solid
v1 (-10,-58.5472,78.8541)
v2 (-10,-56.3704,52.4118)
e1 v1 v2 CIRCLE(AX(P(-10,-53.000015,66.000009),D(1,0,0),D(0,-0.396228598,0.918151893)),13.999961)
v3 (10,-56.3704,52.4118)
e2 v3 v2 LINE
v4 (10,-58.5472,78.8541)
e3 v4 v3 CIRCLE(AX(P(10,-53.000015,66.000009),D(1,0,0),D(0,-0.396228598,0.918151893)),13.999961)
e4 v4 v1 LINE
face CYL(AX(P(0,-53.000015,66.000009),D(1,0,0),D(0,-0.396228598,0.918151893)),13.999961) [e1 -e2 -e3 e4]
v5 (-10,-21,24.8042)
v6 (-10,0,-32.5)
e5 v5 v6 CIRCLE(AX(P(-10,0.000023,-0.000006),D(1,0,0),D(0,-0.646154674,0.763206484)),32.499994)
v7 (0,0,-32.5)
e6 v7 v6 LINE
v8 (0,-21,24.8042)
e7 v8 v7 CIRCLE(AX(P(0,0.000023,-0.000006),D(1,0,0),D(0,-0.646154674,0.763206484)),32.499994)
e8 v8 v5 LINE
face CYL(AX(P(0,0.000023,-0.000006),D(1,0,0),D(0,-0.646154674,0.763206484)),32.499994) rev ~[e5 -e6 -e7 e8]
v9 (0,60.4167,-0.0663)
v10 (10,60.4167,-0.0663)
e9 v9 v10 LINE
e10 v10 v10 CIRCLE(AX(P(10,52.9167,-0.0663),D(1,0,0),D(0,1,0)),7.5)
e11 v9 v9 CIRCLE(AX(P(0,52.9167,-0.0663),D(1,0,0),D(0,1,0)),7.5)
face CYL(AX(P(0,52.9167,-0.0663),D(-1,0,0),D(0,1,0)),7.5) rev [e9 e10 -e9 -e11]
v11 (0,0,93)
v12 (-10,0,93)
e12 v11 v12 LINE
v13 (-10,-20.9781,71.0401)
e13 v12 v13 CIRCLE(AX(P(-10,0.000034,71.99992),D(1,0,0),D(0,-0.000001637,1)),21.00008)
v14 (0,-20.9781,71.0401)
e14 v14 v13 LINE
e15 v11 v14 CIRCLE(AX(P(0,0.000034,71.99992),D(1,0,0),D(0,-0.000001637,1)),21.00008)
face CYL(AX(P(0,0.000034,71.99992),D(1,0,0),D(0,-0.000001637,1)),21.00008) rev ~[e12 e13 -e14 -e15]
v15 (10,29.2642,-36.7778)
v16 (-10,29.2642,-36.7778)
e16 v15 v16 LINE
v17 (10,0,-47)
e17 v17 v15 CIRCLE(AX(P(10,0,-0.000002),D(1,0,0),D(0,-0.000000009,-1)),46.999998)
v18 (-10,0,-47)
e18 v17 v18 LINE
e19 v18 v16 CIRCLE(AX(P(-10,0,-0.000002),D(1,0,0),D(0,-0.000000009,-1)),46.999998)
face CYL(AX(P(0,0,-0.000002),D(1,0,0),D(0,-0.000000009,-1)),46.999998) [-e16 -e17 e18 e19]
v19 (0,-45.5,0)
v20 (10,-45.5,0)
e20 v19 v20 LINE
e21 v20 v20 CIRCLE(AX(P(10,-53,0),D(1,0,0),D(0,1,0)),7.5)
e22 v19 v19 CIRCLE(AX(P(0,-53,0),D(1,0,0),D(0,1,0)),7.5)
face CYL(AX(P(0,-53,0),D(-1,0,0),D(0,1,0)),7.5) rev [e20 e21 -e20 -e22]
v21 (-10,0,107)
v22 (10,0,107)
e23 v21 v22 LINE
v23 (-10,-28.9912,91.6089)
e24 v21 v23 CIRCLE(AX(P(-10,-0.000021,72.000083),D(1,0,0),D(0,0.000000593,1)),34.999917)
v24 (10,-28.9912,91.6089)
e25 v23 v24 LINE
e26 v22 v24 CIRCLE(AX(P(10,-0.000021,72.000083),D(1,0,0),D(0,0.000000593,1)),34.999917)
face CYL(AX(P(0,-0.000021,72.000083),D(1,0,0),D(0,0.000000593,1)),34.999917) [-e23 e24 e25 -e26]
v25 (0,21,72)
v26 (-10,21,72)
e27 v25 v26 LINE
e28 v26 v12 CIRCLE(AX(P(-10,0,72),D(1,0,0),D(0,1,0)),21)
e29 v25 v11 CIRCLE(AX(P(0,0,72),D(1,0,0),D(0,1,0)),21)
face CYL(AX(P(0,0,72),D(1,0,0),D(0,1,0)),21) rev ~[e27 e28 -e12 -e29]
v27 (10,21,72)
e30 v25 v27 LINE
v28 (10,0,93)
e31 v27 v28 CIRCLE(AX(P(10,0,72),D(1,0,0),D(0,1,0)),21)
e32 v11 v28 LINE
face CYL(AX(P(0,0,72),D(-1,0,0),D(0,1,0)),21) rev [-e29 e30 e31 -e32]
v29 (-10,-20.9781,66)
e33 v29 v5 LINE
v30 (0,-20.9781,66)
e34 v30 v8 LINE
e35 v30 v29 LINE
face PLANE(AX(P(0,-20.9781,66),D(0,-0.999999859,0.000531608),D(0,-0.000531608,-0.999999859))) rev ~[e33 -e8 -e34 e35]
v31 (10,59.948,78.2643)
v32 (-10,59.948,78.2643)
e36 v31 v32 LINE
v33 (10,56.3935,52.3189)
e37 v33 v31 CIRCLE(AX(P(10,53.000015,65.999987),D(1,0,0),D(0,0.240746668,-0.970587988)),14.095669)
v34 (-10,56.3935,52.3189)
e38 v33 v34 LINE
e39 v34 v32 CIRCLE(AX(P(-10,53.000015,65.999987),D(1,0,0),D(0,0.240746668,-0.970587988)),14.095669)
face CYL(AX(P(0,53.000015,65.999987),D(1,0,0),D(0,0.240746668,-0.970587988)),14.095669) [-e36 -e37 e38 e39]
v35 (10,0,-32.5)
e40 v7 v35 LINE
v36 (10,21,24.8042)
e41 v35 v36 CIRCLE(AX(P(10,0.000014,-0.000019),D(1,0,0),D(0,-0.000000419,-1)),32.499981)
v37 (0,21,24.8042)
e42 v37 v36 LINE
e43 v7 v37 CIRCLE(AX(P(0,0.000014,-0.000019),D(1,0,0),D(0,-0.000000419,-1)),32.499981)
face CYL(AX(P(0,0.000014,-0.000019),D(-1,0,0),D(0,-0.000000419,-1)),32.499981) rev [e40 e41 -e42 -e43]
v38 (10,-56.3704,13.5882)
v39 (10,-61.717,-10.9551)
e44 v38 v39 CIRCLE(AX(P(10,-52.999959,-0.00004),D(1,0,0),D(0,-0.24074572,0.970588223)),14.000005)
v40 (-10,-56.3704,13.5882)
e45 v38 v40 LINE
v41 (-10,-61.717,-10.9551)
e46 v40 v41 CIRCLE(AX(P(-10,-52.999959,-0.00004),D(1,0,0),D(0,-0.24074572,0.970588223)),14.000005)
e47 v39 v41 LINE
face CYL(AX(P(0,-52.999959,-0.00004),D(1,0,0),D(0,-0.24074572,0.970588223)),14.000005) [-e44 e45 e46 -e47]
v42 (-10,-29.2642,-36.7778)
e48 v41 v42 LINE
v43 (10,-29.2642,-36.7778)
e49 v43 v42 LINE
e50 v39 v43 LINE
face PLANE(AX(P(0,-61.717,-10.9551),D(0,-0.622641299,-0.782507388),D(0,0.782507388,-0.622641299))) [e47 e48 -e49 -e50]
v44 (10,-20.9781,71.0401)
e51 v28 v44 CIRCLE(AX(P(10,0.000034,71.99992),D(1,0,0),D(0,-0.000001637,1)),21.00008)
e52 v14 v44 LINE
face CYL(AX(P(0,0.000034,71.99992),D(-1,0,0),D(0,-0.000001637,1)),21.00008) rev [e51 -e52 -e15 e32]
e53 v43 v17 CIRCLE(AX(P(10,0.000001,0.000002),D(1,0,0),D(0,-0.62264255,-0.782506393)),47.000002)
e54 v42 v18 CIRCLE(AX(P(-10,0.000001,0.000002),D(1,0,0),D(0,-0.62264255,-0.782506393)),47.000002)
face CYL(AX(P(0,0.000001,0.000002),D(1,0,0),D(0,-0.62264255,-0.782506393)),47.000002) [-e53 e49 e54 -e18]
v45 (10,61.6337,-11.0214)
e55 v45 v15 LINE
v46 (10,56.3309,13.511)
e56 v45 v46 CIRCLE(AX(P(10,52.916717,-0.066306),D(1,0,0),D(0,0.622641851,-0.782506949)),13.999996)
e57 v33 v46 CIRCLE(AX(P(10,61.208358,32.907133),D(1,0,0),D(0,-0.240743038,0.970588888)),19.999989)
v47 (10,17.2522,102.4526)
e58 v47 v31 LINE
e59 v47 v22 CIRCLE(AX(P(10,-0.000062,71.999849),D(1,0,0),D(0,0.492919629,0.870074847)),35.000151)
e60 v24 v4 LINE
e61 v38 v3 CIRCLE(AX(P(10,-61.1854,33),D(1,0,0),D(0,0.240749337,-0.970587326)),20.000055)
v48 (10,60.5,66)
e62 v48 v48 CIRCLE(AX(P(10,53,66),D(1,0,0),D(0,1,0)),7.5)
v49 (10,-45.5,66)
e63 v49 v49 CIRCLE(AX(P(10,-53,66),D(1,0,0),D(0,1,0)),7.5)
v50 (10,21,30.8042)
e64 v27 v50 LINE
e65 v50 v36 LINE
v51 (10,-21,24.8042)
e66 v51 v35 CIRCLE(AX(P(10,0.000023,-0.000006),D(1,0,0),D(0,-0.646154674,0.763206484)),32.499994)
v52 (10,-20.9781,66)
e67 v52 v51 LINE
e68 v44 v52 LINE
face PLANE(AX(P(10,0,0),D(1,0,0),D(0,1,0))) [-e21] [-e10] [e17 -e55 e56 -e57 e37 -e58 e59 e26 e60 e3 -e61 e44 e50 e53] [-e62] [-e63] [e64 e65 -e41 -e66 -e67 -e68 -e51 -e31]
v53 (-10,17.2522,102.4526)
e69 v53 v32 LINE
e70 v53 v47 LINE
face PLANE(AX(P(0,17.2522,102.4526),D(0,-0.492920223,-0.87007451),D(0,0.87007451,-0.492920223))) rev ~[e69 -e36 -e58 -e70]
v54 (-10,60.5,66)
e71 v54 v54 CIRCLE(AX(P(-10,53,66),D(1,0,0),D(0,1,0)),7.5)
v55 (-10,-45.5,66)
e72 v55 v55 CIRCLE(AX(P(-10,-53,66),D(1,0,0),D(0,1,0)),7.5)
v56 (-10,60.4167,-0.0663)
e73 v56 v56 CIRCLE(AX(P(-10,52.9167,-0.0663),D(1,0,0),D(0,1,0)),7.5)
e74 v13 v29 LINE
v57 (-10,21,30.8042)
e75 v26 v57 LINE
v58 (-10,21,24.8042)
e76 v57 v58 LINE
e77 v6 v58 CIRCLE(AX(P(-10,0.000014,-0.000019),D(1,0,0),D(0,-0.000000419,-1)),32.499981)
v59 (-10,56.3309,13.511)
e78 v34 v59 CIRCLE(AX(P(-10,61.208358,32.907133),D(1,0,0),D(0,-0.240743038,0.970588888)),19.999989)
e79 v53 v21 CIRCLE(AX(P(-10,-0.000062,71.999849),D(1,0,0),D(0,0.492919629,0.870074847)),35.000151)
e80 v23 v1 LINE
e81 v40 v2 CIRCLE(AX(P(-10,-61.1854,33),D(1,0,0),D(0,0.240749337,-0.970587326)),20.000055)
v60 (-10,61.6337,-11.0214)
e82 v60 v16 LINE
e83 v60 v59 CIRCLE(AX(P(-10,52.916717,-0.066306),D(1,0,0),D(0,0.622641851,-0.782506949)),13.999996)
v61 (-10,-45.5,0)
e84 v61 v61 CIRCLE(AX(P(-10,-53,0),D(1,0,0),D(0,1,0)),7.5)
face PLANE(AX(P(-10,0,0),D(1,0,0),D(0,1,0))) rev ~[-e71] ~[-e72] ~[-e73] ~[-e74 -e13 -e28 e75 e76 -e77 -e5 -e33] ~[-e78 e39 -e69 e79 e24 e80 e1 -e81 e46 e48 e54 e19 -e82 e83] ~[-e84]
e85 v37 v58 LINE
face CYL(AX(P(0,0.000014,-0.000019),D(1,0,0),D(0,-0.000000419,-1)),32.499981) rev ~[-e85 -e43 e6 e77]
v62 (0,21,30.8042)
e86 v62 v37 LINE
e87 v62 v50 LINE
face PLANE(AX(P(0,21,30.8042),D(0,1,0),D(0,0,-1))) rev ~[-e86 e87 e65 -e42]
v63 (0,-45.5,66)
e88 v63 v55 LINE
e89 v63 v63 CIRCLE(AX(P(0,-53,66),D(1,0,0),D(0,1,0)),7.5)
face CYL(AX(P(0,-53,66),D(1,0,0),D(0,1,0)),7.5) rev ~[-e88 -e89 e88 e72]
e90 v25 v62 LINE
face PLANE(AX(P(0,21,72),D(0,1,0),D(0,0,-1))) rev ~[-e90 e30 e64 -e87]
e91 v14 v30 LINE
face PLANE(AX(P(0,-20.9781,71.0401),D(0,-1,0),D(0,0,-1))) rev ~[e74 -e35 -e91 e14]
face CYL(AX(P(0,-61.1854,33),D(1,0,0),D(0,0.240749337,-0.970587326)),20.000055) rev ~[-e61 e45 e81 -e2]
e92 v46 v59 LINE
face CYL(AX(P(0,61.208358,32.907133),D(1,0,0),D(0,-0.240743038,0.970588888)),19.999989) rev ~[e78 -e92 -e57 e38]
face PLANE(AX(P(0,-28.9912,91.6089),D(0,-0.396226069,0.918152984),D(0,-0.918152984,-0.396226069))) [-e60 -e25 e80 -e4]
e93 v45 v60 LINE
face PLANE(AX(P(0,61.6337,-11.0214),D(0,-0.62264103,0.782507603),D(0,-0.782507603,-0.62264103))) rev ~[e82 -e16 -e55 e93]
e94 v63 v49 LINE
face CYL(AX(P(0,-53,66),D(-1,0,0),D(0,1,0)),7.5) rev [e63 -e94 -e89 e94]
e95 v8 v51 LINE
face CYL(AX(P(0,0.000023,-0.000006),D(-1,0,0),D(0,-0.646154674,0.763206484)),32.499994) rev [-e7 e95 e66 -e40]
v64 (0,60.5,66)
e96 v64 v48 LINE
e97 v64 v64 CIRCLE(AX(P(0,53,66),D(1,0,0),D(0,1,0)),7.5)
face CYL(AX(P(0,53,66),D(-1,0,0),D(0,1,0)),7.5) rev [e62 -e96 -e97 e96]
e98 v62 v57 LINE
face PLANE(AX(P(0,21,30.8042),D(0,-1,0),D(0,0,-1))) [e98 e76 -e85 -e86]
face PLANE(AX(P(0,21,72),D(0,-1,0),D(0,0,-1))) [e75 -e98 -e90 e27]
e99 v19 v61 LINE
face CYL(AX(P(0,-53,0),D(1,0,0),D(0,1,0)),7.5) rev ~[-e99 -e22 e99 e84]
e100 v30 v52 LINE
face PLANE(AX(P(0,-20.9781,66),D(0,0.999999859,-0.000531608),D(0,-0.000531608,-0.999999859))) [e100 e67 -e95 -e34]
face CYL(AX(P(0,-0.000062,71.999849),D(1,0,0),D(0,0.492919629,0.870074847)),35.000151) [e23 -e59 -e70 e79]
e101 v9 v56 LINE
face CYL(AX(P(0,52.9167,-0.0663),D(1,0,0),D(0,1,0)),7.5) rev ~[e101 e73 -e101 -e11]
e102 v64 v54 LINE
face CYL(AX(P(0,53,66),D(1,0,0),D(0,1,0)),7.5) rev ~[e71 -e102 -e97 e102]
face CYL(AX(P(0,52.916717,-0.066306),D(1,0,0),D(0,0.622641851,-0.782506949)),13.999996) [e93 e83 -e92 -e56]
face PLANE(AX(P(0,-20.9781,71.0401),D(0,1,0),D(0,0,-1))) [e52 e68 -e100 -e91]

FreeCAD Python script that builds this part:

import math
import FreeCAD as App
import Part
import Sketcher

doc = App.newDocument("Part")
params = doc.addObject("Spreadsheet::Sheet", "Params")
for row, (alias, value) in enumerate([
    ("sketch1_diameter", "15 mm"),
    ("sketch1_radius", "20 mm"),
    ("sketch1_radius2", "47 mm"),
    ("sketch1_radius3", "21 mm"),
    ("sketch1_radius4", "32.5 mm"),
    ("pad1_length", "20 mm"),
], start=1):
    params.set(f"A{row}", alias)
    params.set(f"B{row}", "=" + value)
    params.setAlias(f"B{row}", alias)

body = doc.addObject("PartDesign::Body", "Body")

# Sketch on YZ plane
sketch1 = body.newObject("Sketcher::SketchObject", "Sketch")
sketch1.AttachmentSupport = (doc.getObject("YZ_Plane"), [""])
sketch1.MapMode = "FlatFace"
sketch1.addGeometry([
    Part.LineSegment(App.Vector(59.948, 78.2643, 0), App.Vector(17.2522, 102.4526, 0)),  # 0
    Part.ArcOfCircle(Part.Circle(App.Vector(0, 72, 0), App.Vector(0, 0, 1), 35), math.radians(60.467304), math.radians(90)),  # 1
    Part.ArcOfCircle(Part.Circle(App.Vector(0, 72, 0), App.Vector(0, 0, 1), 34.999989), math.radians(90), math.radians(145.926593)),  # 2
    Part.LineSegment(App.Vector(-28.9912, 91.6089, 0), App.Vector(-58.5472, 78.8541, 0)),  # 3
    Part.ArcOfCircle(Part.Circle(App.Vector(-53, 66, 0), App.Vector(0, 0, 1), 13.999976), math.radians(113.342662), math.radians(256.069567)),  # 4
    Part.ArcOfCircle(Part.Circle(App.Vector(-61.1854, 33, 0), App.Vector(0, 0, 1), 20.000055), math.radians(-76.069229), math.radians(76.069229)),  # 5
    Part.ArcOfCircle(Part.Circle(App.Vector(-53, 0, 0), App.Vector(0, 0, 1), 13.999956), math.radians(103.930433), math.radians(231.490648)),  # 6
    Part.LineSegment(App.Vector(-61.717, -10.9551, 0), App.Vector(-29.2642, -36.7778, 0)),  # 7
    Part.ArcOfCircle(Part.Circle(App.Vector(0, 0, 0), App.Vector(0, 0, 1), 47), math.radians(-128.509366), math.radians(-90)),  # 8
    Part.ArcOfCircle(Part.Circle(App.Vector(0, 0, 0), App.Vector(0, 0, 1), 47), math.radians(-90), math.radians(-51.490634)),  # 9
    Part.LineSegment(App.Vector(29.2642, -36.7778, 0), App.Vector(61.6337, -11.0214, 0)),  # 10
    Part.ArcOfCircle(Part.Circle(App.Vector(52.9167, -0.0663, 0), App.Vector(0, 0, 1), 14.000011), math.radians(-51.490648), math.radians(75.884846)),  # 11
    Part.ArcOfCircle(Part.Circle(App.Vector(61.2084, 32.9071, 0), App.Vector(0, 0, 1), 20.000031), math.radians(103.930493), math.radians(255.884617)),  # 12
    Part.ArcOfCircle(Part.Circle(App.Vector(53, 66, 0), App.Vector(0, 0, 1), 14.095685), math.radians(-76.069341), math.radians(60.467477)),  # 13
    Part.Circle(App.Vector(-53, 0, 0), App.Vector(0, 0, 1), 7.5),  # 14
    Part.Circle(App.Vector(52.9167, -0.0663, 0), App.Vector(0, 0, 1), 7.5),  # 15
    Part.Circle(App.Vector(-53, 66, 0), App.Vector(0, 0, 1), 7.5),  # 16
    Part.ArcOfCircle(Part.Circle(App.Vector(0, 72, 0), App.Vector(0, 0, 1), 21), math.radians(0), math.radians(90)),  # 17
    Part.LineSegment(App.Vector(21, 72, 0), App.Vector(21, 24.8042, 0)),  # 18
    Part.ArcOfCircle(Part.Circle(App.Vector(0, 0, 0), App.Vector(0, 0, 1), 32.499974), math.radians(-90), math.radians(49.74772)),  # 19
    Part.ArcOfCircle(Part.Circle(App.Vector(0, 0, 0), App.Vector(0, 0, 1), 32.5), math.radians(130.25228), math.radians(270)),  # 20
    Part.LineSegment(App.Vector(-21, 24.8042, 0), App.Vector(-20.9781, 66, 0)),  # 21
    Part.LineSegment(App.Vector(-20.9781, 66, 0), App.Vector(-20.9781, 71.0401, 0)),  # 22
    Part.ArcOfCircle(Part.Circle(App.Vector(0, 72, 0), App.Vector(0, 0, 1), 21), math.radians(90), math.radians(182.619869)),  # 23
    Part.Circle(App.Vector(53, 66, 0), App.Vector(0, 0, 1), 7.5),  # 24
], False)
sketch1.addConstraint([
    Sketcher.Constraint("Tangent", 0, 2, 1, 1),
    Sketcher.Constraint("Tangent", 1, 2, 2, 1),
    Sketcher.Constraint("Coincident", 2, 2, 3, 1),
    Sketcher.Constraint("Tangent", 3, 2, 4, 1),
    Sketcher.Constraint("Tangent", 4, 2, 5, 2),
    Sketcher.Constraint("Tangent", 5, 1, 6, 1),
    Sketcher.Constraint("Tangent", 6, 2, 7, 1),
    Sketcher.Constraint("Tangent", 7, 2, 8, 1),
    Sketcher.Constraint("Tangent", 8, 2, 9, 1),
    Sketcher.Constraint("Tangent", 9, 2, 10, 1),
    Sketcher.Constraint("Tangent", 10, 2, 11, 1),
    Sketcher.Constraint("Tangent", 11, 2, 12, 2),
    Sketcher.Constraint("Tangent", 12, 1, 13, 1),
    Sketcher.Constraint("Tangent", 13, 2, 0, 1),
    Sketcher.Constraint("Tangent", 17, 1, 18, 1),
    Sketcher.Constraint("Coincident", 18, 2, 19, 2),
    Sketcher.Constraint("Tangent", 19, 1, 20, 2),
    Sketcher.Constraint("Coincident", 20, 1, 21, 1),
    Sketcher.Constraint("Coincident", 21, 2, 22, 1),
    Sketcher.Constraint("Coincident", 22, 2, 23, 2),
    Sketcher.Constraint("Tangent", 23, 1, 17, 2),
    Sketcher.Constraint("Vertical", 18),
    Sketcher.Constraint("Vertical", 22),
    Sketcher.Constraint("Coincident", 8, 3, -1, 1),
    Sketcher.Constraint("Coincident", 19, 3, -1, 1),
    Sketcher.Constraint("Coincident", 14, 3, 6, 3),
    Sketcher.Constraint("Coincident", 15, 3, 11, 3),
    Sketcher.Constraint("Coincident", 16, 3, 4, 3),
    Sketcher.Constraint("Coincident", 17, 3, 1, 3),
    Sketcher.Constraint("Coincident", 24, 3, 13, 3),
    Sketcher.Constraint("Equal", 1, 2),
    Sketcher.Constraint("Equal", 4, 6),
    Sketcher.Constraint("Equal", 8, 9),
    Sketcher.Constraint("Equal", 6, 11),
    Sketcher.Constraint("Equal", 5, 12),
    Sketcher.Constraint("Equal", 14, 15),
    Sketcher.Constraint("Equal", 15, 16),
    Sketcher.Constraint("Equal", 19, 20),
    Sketcher.Constraint("Equal", 17, 23),
    Sketcher.Constraint("Equal", 16, 24),
    Sketcher.Constraint("Symmetric", 4, 3, 13, 3, -2),
    Sketcher.Constraint("PointOnObject", 1, 3, -2),
    Sketcher.Constraint("PointOnObject", 6, 3, -1),
    Sketcher.Constraint("PointOnObject", 1, 2, -2),
    Sketcher.Constraint("PointOnObject", 8, 2, -2),
    Sketcher.Constraint("PointOnObject", 19, 1, -2),
    Sketcher.Constraint("PointOnObject", 23, 1, -2),
    Sketcher.Constraint("Horizontal", 7, 2, 9, 2),
    Sketcher.Constraint("Horizontal", 18, 2, 20, 1),
    Sketcher.Constraint("Horizontal", 24, 3, 21, 2),
    Sketcher.Constraint("Vertical", 4, 3, 6, 3),
    Sketcher.Constraint("Diameter", 14, 15.0),
    Sketcher.Constraint("Radius", 5, 20.0),
    Sketcher.Constraint("Radius", 8, 47.0),
    Sketcher.Constraint("Radius", 17, 21.0),
    Sketcher.Constraint("Radius", 19, 32.5),
    Sketcher.Constraint("DistanceY", -1, 1, 1, 3, 72.0),
    Sketcher.Constraint("DistanceY", -1, 1, 4, 3, 66.0),
    Sketcher.Constraint("Radius", 1, 35.0),
    Sketcher.Constraint("Radius", 4, 14.0),
    Sketcher.Constraint("DistanceX", 4, 3, -1, 1, 53.0),
    Sketcher.Constraint("DistanceY", 22, 1, 22, 2, 5.04),
    Sketcher.Constraint("Radius", 13, 14.0957),
    Sketcher.Constraint("DistanceY", -1, 1, 12, 3, 32.907),
    Sketcher.Constraint("DistanceY", -1, 1, 2, 2, 91.609),
])
sketch1.setExpression("Constraints[51]", "Params.sketch1_diameter")
sketch1.setExpression("Constraints[52]", "Params.sketch1_radius")
sketch1.setExpression("Constraints[53]", "Params.sketch1_radius2")
sketch1.setExpression("Constraints[54]", "Params.sketch1_radius3")
sketch1.setExpression("Constraints[55]", "Params.sketch1_radius4")
pad1 = body.newObject("PartDesign::Pad", "Pad")
pad1.Profile = sketch1
pad1.setExpression("Length", "Params.pad1_length")
pad1.Midplane = True

doc.recompute()
